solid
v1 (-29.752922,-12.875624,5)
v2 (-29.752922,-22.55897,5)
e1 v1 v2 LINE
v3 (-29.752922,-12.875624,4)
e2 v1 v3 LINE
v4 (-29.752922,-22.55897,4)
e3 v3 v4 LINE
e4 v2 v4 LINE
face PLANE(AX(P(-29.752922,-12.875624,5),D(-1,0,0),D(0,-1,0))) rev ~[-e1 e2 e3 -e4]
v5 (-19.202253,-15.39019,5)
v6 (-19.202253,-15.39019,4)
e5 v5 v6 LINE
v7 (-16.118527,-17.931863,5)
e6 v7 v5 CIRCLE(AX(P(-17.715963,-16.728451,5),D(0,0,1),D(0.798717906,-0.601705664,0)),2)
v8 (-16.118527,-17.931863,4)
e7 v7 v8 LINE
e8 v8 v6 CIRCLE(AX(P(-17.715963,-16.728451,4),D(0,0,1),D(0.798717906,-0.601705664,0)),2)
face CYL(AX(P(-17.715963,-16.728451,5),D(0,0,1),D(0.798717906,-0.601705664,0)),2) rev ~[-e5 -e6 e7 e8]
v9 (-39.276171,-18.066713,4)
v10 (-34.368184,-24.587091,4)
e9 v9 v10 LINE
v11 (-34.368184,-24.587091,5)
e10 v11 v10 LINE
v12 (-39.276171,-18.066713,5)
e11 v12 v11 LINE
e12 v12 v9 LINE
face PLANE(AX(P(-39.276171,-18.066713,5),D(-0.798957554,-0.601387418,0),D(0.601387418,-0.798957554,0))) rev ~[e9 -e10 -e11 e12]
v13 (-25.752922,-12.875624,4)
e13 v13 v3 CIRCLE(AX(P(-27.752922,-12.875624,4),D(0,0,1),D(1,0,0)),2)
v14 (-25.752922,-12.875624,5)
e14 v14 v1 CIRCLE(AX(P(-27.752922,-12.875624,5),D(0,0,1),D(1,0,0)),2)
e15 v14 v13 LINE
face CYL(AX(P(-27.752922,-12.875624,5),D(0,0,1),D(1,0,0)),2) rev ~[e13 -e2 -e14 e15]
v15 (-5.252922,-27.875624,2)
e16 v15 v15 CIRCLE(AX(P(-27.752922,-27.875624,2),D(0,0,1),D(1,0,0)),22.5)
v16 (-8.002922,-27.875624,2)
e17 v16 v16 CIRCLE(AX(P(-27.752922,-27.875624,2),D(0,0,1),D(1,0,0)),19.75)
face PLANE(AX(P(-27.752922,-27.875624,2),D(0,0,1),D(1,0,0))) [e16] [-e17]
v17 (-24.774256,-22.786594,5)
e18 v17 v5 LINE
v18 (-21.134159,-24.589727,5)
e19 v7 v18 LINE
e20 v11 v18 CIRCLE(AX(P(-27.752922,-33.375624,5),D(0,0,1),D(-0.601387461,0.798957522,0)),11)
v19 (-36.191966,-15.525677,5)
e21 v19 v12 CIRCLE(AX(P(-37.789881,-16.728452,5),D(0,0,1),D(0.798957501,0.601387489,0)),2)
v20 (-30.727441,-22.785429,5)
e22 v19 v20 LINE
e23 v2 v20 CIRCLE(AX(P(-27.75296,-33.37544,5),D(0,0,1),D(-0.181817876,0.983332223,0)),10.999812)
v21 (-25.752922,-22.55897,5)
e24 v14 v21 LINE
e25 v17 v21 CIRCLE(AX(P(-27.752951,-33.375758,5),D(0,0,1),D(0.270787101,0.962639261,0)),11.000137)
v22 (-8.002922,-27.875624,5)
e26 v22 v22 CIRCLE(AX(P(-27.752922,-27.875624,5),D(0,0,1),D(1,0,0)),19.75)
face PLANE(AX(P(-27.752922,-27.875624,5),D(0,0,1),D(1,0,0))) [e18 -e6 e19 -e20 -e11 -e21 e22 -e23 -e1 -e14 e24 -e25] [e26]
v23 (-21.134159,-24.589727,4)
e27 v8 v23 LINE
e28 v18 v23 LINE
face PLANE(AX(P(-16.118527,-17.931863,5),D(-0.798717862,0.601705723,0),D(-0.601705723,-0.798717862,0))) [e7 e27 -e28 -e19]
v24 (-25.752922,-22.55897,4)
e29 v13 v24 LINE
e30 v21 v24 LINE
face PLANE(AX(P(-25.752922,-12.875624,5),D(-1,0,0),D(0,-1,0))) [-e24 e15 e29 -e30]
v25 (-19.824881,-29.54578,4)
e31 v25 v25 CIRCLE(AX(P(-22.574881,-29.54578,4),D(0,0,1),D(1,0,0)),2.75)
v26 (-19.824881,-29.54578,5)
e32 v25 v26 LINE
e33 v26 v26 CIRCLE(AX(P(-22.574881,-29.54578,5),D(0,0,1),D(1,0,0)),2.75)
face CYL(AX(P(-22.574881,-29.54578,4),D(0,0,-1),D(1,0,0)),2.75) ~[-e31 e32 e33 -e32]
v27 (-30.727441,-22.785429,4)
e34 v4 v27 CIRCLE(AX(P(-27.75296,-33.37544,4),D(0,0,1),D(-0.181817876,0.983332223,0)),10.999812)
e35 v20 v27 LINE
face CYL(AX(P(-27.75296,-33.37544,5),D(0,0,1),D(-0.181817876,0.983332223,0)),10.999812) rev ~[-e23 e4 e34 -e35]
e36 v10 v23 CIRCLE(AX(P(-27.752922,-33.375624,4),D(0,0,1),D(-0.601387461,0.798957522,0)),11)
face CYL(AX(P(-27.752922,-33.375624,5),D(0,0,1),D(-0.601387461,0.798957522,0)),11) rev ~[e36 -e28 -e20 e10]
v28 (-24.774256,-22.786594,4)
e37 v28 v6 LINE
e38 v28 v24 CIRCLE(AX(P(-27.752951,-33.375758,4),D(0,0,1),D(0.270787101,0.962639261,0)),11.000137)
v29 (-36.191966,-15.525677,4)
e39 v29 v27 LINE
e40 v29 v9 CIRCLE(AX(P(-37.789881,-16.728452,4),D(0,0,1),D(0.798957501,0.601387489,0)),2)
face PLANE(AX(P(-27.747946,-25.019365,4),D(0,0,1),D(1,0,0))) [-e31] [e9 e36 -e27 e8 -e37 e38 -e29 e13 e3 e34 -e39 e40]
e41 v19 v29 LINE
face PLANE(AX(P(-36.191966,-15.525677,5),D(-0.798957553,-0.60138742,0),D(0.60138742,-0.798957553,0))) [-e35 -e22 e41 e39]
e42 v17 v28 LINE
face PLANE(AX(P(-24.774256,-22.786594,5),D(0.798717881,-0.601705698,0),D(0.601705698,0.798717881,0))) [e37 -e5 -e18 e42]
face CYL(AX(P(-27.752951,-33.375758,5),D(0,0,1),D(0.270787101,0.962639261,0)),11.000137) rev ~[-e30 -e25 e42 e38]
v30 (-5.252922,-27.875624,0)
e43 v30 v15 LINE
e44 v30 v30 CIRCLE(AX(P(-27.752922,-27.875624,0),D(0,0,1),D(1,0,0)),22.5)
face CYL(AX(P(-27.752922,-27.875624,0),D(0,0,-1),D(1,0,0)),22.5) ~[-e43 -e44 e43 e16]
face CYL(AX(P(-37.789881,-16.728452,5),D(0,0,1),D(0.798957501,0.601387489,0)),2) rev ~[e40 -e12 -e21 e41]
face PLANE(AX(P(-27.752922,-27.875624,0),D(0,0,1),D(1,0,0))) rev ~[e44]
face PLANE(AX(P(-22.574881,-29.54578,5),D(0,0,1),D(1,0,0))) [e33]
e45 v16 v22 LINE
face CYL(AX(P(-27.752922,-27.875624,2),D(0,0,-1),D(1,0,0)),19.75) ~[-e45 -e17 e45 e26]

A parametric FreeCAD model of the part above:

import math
import FreeCAD as App
import Part
import Sketcher

doc = App.newDocument("Part")
params = doc.addObject("Spreadsheet::Sheet", "Params")
for row, (alias, value) in enumerate([
    ("sketch1_diameter", "45 mm"),
    ("pad1_length", "2 mm"),
    ("sketch2_diameter", "39.5 mm"),
    ("pad2_length", "3 mm"),
    ("sketch3_radius", "11 mm"),
    ("sketch3_radius2", "2 mm"),
    ("pocket1_length", "1 mm"),
    ("sketch4_diameter", "5.5 mm"),
    ("pad3_length", "1 mm"),
], start=1):
    params.set(f"A{row}", alias)
    params.set(f"B{row}", "=" + value)
    params.setAlias(f"B{row}", alias)

body = doc.addObject("PartDesign::Body", "Body")

# Sketch on XY plane
sketch1 = body.newObject("Sketcher::SketchObject", "Sketch")
sketch1.AttachmentSupport = (doc.getObject("XY_Plane"), [""])
sketch1.MapMode = "FlatFace"
sketch1.addGeometry(Part.Circle(App.Vector(-28, -28, 0), App.Vector(0, 0, 1), 22), False)
sketch1.addConstraint(Sketcher.Constraint("Diameter", 0, 45.0))
sketch1.addConstraint(Sketcher.Constraint("DistanceX", 0, 3, -1, 1, 27.752922))
sketch1.addConstraint(Sketcher.Constraint("DistanceY", 0, 3, -1, 1, 27.875624))
sketch1.setExpression("Constraints[0]", "Params.sketch1_diameter")
pad1 = body.newObject("PartDesign::Pad", "Pad")
pad1.Profile = sketch1
pad1.setExpression("Length", "Params.pad1_length")

# Sketch on XY plane
sketch2 = body.newObject("Sketcher::SketchObject", "Sketch001")
sketch2.AttachmentSupport = (doc.getObject("XY_Plane"), [""])
sketch2.MapMode = "FlatFace"
sketch2.AttachmentOffset = App.Placement(App.Vector(0, 0, 2), App.Rotation())
sketch2.addGeometry(Part.Circle(App.Vector(-28, -28, 0), App.Vector(0, 0, 1), 20), False)
sketch2.addConstraint(Sketcher.Constraint("Diameter", 0, 39.5))
sketch2.addConstraint(Sketcher.Constraint("DistanceX", 0, 3, -1, 1, 27.752922))
sketch2.addConstraint(Sketcher.Constraint("DistanceY", 0, 3, -1, 1, 27.875624))
sketch2.setExpression("Constraints[0]", "Params.sketch2_diameter")
pad2 = body.newObject("PartDesign::Pad", "Pad001")
pad2.Profile = sketch2
pad2.setExpression("Length", "Params.pad2_length")

# Sketch on XY plane
sketch3 = body.newObject("Sketcher::SketchObject", "Sketch002")
sketch3.AttachmentSupport = (doc.getObject("XY_Plane"), [""])
sketch3.MapMode = "FlatFace"
sketch3.AttachmentOffset = App.Placement(App.Vector(0, 0, 5), App.Rotation())
sketch3.addGeometry(Part.ArcOfCircle(Part.Circle(App.Vector(-27.8, -33.4, 0), App.Vector(0, 0, 1), 11), math.radians(127), math.radians(413)), False)
sketch3.addGeometry(Part.LineSegment(App.Vector(-21.1, -24.6, 0), App.Vector(-16.1, -17.9, 0)), False)
sketch3.addGeometry(Part.ArcOfCircle(Part.Circle(App.Vector(-17.7, -16.7, 0), App.Vector(0, 0, 1), 2), math.radians(-37), math.radians(138)), False)
sketch3.addGeometry(Part.LineSegment(App.Vector(-19.2, -15.4, 0), App.Vector(-24.8, -22.8, 0)), False)
sketch3.addGeometry(Part.ArcOfCircle(Part.Circle(App.Vector(-27.8, -33.4, 0), App.Vector(0, 0, 1), 11), math.radians(74.29), math.radians(79.52)), False)
sketch3.addGeometry(Part.LineSegment(App.Vector(-25.8, -22.6, 0), App.Vector(-25.8, -12.9, 0)), False)
sketch3.addGeometry(Part.ArcOfCircle(Part.Circle(App.Vector(-27.8, -12.9, 0), App.Vector(0, 0, 1), 2), math.radians(0), math.radians(180)), False)
sketch3.addGeometry(Part.LineSegment(App.Vector(-29.8, -12.9, 0), App.Vector(-29.8, -22.6, 0)), False)
sketch3.addGeometry(Part.ArcOfCircle(Part.Circle(App.Vector(-27.8, -33.4, 0), App.Vector(0, 0, 1), 11), math.radians(100.48), math.radians(105.69)), False)
sketch3.addGeometry(Part.LineSegment(App.Vector(-30.7, -22.8, 0), App.Vector(-36.2, -15.5, 0)), False)
sketch3.addGeometry(Part.ArcOfCircle(Part.Circle(App.Vector(-37.8, -16.7, 0), App.Vector(0, 0, 1), 2), math.radians(37), math.radians(222)), False)
sketch3.addGeometry(Part.LineSegment(App.Vector(-39.3, -18.1, 0), App.Vector(-34.4, -24.6, 0)), False)
sketch3.addConstraint(Sketcher.Constraint("Coincident", 0, 2, 1, 1))
sketch3.addConstraint(Sketcher.Constraint("Tangent", 1, 2, 2, 1))
sketch3.addConstraint(Sketcher.Constraint("Coincident", 2, 2, 3, 1))
sketch3.addConstraint(Sketcher.Constraint("Coincident", 3, 2, 4, 1))
sketch3.addConstraint(Sketcher.Constraint("Coincident", 4, 2, 5, 1))
sketch3.addConstraint(Sketcher.Constraint("Tangent", 5, 2, 6, 1))
sketch3.addConstraint(Sketcher.Constraint("Tangent", 6, 2, 7, 1))
sketch3.addConstraint(Sketcher.Constraint("Coincident", 7, 2, 8, 1))
sketch3.addConstraint(Sketcher.Constraint("Coincident", 8, 2, 9, 1))
sketch3.addConstraint(Sketcher.Constraint("Tangent", 9, 2, 10, 1))
sketch3.addConstraint(Sketcher.Constraint("Coincident", 10, 2, 11, 1))
sketch3.addConstraint(Sketcher.Constraint("Coincident", 11, 2, 0, 1))
sketch3.addConstraint(Sketcher.Constraint("Vertical", 5))
sketch3.addConstraint(Sketcher.Constraint("Vertical", 7))
sketch3.addConstraint(Sketcher.Constraint("Equal", 2, 6))
sketch3.addConstraint(Sketcher.Constraint("Equal", 6, 10))
sketch3.addConstraint(Sketcher.Constraint("Parallel", 1, 3))
sketch3.addConstraint(Sketcher.Constraint("Parallel", 9, 11))
sketch3.addConstraint(Sketcher.Constraint("Horizontal", 2, 3, 10, 3))
sketch3.addConstraint(Sketcher.Constraint("Horizontal", 4, 2, 7, 2))
sketch3.addConstraint(Sketcher.Constraint("Vertical", 0, 3, 6, 3))
sketch3.addConstraint(Sketcher.Constraint("Radius", 0, 11.0))
sketch3.addConstraint(Sketcher.Constraint("Radius", 2, 2.0))
sketch3.addConstraint(Sketcher.Constraint("DistanceY", 0, 3, 6, 3, 20.5))
sketch3.addConstraint(Sketcher.Constraint("Radius", 4, 11.000137))
sketch3.addConstraint(Sketcher.Constraint("Radius", 8, 10.999812))
sketch3.addConstraint(Sketcher.Constraint("DistanceX", 8, 3, 0, 2, 6.618801))
sketch3.addConstraint(Sketcher.Constraint("DistanceY", 0, 2, 8, 2, 1.804298))
sketch3.addConstraint(Sketcher.Constraint("Distance", 1, 8.335689))
sketch3.addConstraint(Sketcher.Constraint("Distance", 9, 9.08653))
sketch3.addConstraint(Sketcher.Constraint("DistanceY", 5, 1, 5, 2, 9.683346))
sketch3.addConstraint(Sketcher.Constraint("DistanceX", 0, 3, -1, 1, 27.752922))
sketch3.addConstraint(Sketcher.Constraint("DistanceY", 2, 3, -1, 1, 16.728451))
sketch3.addConstraint(Sketcher.Constraint("DistanceX", 4, 3, -1, 1, 27.752951))
sketch3.addConstraint(Sketcher.Constraint("DistanceX", 8, 3, -1, 1, 27.75296))
sketch3.addConstraint(Sketcher.Constraint("DistanceY", 8, 3, -1, 1, 33.37544))
sketch3.addConstraint(Sketcher.Constraint("DistanceY", 2, 2, -1, 1, 15.39019))
sketch3.addConstraint(Sketcher.Constraint("DistanceX", 10, 2, -1, 1, 39.276171))
sketch3.setExpression("Constraints[21]", "Params.sketch3_radius")
sketch3.setExpression("Constraints[22]", "Params.sketch3_radius2")
pocket1 = body.newObject("PartDesign::Pocket", "Pocket")
pocket1.Profile = sketch3
pocket1.setExpression("Length", "Params.pocket1_length")

# Sketch on XY plane
sketch4 = body.newObject("Sketcher::SketchObject", "Sketch003")
sketch4.AttachmentSupport = (doc.getObject("XY_Plane"), [""])
sketch4.MapMode = "FlatFace"
sketch4.AttachmentOffset = App.Placement(App.Vector(0, 0, 4), App.Rotation())
sketch4.addGeometry(Part.Circle(App.Vector(-22.6, -29.5, 0), App.Vector(0, 0, 1), 2.8), False)
sketch4.addConstraint(Sketcher.Constraint("Diameter", 0, 5.5))
sketch4.addConstraint(Sketcher.Constraint("DistanceX", 0, 3, -1, 1, 22.574881))
sketch4.addConstraint(Sketcher.Constraint("DistanceY", 0, 3, -1, 1, 29.54578))
sketch4.setExpression("Constraints[0]", "Params.sketch4_diameter")
pad3 = body.newObject("PartDesign::Pad", "Pad002")
pad3.Profile = sketch4
pad3.setExpression("Length", "Params.pad3_length")

doc.recompute()
